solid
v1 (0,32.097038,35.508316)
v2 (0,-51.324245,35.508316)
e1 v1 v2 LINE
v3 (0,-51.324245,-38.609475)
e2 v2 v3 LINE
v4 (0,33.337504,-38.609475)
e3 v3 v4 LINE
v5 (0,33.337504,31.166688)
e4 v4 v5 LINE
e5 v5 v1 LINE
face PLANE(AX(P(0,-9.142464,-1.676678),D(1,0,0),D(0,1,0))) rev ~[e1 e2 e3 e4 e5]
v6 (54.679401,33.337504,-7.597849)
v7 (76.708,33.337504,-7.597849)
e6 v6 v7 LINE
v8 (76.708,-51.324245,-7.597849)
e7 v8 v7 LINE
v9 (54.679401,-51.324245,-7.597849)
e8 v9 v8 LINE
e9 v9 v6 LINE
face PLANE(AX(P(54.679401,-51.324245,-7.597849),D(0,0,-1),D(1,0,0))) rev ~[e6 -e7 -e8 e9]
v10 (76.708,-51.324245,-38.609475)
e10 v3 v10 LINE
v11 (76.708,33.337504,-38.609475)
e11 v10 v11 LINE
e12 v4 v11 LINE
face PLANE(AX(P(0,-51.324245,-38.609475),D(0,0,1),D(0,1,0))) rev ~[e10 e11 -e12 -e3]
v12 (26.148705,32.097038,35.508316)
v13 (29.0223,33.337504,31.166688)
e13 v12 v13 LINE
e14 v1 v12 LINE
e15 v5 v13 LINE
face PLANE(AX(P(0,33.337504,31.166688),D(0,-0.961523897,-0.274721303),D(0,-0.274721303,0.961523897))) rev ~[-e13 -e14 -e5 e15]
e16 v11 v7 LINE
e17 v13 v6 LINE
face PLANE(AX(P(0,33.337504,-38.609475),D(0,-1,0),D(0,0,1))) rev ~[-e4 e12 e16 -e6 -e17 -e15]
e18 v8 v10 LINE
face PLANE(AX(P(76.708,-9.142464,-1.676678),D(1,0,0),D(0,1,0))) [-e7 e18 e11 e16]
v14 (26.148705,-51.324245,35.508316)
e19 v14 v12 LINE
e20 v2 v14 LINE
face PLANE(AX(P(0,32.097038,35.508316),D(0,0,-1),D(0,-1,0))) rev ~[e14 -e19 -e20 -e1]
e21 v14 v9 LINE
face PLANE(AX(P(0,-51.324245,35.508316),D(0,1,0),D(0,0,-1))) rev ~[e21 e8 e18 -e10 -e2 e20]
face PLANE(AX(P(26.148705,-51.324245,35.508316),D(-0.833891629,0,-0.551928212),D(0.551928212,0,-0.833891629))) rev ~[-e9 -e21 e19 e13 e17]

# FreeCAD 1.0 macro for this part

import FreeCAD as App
import Part
import Sketcher
Q = App.Units.Quantity


def add_polygon(sketch, points):
    """Adds a closed chain of lines whose ends are joined by coincident constraints."""
    first, n = sketch.GeometryCount, len(points)
    for a, b in zip(points, points[1:] + points[:1]):
        sketch.addGeometry(Part.LineSegment(App.Vector(*a, 0), App.Vector(*b, 0)), False)
    for i in range(n):
        sketch.addConstraint(Sketcher.Constraint("Coincident", first + i, 2, first + (i + 1) % n, 1))

doc = App.newDocument("Part")
body = doc.addObject("PartDesign::Body", "Body")

# Sketch on YZ plane
sketch1 = body.newObject("Sketcher::SketchObject", "Sketch")
sketch1.AttachmentSupport = (doc.getObject("YZ_Plane"), [""])
sketch1.MapMode = "FlatFace"
add_polygon(sketch1, [(32.1, 35.5), (-51.3, 35.5), (-51.3, -38.6), (33.3, -38.6), (33.3, 31.2)])  # lines 0-4
sketch1.addConstraint(Sketcher.Constraint("Horizontal", 0))
sketch1.addConstraint(Sketcher.Constraint("Vertical", 1))
sketch1.addConstraint(Sketcher.Constraint("Horizontal", 2))
sketch1.addConstraint(Sketcher.Constraint("Vertical", 3))
sketch1.addConstraint(Sketcher.Constraint("DistanceX", -1, 1, 2, 2, Q("1.3125002 in")))
sketch1.addConstraint(Sketcher.Constraint("DistanceX", 2, 1, 2, 2, Q("84.661749 mm")))
sketch1.addConstraint(Sketcher.Constraint("DistanceY", 1, 2, 1, 1, Q("74.117791 mm")))
sketch1.addConstraint(Sketcher.Constraint("Distance", 4, Q("4.515362 mm")))
sketch1.addConstraint(Sketcher.Constraint("DistanceX", 0, 2, 0, 1, Q("83.421283 mm")))
sketch1.addConstraint(Sketcher.Constraint("DistanceY", -1, 1, 3, 2, Q("31.166688 mm")))
pad1 = body.newObject("PartDesign::Pad", "Pad")
pad1.Profile = sketch1
pad1.Length = Q("3.02 in")

# Sketch on XZ plane
sketch2 = body.newObject("Sketcher::SketchObject", "Sketch001")
sketch2.AttachmentSupport = (doc.getObject("XZ_Plane"), [""])
sketch2.MapMode = "FlatFace"
sketch2.AttachmentOffset = App.Placement(App.Vector(0, 0, 51.324245), App.Rotation())
add_polygon(sketch2, [(77, 36), (26, 36), (55, -8), (77, -8)])  # lines 0-3
sketch2.addConstraint(Sketcher.Constraint("Horizontal", 0))
sketch2.addConstraint(Sketcher.Constraint("Horizontal", 2))
sketch2.addConstraint(Sketcher.Constraint("Vertical", 3))
sketch2.addConstraint(Sketcher.Constraint("DistanceX", -1, 1, 2, 2, Q("3.02 in")))
sketch2.addConstraint(Sketcher.Constraint("DistanceX", 2, 1, 2, 2, Q("22.028599 mm")))
sketch2.addConstraint(Sketcher.Constraint("DistanceX", 0, 2, 0, 1, Q("50.559295 mm")))
sketch2.addConstraint(Sketcher.Constraint("DistanceY", 3, 1, 3, 2, Q("43.106165 mm")))
sketch2.addConstraint(Sketcher.Constraint("DistanceY", 1, 2, -1, 1, Q("7.597849 mm")))
pocket1 = body.newObject("PartDesign::Pocket", "Pocket")
pocket1.Profile = sketch2
pocket1.Length = Q("3.48 in")

doc.recompute()
